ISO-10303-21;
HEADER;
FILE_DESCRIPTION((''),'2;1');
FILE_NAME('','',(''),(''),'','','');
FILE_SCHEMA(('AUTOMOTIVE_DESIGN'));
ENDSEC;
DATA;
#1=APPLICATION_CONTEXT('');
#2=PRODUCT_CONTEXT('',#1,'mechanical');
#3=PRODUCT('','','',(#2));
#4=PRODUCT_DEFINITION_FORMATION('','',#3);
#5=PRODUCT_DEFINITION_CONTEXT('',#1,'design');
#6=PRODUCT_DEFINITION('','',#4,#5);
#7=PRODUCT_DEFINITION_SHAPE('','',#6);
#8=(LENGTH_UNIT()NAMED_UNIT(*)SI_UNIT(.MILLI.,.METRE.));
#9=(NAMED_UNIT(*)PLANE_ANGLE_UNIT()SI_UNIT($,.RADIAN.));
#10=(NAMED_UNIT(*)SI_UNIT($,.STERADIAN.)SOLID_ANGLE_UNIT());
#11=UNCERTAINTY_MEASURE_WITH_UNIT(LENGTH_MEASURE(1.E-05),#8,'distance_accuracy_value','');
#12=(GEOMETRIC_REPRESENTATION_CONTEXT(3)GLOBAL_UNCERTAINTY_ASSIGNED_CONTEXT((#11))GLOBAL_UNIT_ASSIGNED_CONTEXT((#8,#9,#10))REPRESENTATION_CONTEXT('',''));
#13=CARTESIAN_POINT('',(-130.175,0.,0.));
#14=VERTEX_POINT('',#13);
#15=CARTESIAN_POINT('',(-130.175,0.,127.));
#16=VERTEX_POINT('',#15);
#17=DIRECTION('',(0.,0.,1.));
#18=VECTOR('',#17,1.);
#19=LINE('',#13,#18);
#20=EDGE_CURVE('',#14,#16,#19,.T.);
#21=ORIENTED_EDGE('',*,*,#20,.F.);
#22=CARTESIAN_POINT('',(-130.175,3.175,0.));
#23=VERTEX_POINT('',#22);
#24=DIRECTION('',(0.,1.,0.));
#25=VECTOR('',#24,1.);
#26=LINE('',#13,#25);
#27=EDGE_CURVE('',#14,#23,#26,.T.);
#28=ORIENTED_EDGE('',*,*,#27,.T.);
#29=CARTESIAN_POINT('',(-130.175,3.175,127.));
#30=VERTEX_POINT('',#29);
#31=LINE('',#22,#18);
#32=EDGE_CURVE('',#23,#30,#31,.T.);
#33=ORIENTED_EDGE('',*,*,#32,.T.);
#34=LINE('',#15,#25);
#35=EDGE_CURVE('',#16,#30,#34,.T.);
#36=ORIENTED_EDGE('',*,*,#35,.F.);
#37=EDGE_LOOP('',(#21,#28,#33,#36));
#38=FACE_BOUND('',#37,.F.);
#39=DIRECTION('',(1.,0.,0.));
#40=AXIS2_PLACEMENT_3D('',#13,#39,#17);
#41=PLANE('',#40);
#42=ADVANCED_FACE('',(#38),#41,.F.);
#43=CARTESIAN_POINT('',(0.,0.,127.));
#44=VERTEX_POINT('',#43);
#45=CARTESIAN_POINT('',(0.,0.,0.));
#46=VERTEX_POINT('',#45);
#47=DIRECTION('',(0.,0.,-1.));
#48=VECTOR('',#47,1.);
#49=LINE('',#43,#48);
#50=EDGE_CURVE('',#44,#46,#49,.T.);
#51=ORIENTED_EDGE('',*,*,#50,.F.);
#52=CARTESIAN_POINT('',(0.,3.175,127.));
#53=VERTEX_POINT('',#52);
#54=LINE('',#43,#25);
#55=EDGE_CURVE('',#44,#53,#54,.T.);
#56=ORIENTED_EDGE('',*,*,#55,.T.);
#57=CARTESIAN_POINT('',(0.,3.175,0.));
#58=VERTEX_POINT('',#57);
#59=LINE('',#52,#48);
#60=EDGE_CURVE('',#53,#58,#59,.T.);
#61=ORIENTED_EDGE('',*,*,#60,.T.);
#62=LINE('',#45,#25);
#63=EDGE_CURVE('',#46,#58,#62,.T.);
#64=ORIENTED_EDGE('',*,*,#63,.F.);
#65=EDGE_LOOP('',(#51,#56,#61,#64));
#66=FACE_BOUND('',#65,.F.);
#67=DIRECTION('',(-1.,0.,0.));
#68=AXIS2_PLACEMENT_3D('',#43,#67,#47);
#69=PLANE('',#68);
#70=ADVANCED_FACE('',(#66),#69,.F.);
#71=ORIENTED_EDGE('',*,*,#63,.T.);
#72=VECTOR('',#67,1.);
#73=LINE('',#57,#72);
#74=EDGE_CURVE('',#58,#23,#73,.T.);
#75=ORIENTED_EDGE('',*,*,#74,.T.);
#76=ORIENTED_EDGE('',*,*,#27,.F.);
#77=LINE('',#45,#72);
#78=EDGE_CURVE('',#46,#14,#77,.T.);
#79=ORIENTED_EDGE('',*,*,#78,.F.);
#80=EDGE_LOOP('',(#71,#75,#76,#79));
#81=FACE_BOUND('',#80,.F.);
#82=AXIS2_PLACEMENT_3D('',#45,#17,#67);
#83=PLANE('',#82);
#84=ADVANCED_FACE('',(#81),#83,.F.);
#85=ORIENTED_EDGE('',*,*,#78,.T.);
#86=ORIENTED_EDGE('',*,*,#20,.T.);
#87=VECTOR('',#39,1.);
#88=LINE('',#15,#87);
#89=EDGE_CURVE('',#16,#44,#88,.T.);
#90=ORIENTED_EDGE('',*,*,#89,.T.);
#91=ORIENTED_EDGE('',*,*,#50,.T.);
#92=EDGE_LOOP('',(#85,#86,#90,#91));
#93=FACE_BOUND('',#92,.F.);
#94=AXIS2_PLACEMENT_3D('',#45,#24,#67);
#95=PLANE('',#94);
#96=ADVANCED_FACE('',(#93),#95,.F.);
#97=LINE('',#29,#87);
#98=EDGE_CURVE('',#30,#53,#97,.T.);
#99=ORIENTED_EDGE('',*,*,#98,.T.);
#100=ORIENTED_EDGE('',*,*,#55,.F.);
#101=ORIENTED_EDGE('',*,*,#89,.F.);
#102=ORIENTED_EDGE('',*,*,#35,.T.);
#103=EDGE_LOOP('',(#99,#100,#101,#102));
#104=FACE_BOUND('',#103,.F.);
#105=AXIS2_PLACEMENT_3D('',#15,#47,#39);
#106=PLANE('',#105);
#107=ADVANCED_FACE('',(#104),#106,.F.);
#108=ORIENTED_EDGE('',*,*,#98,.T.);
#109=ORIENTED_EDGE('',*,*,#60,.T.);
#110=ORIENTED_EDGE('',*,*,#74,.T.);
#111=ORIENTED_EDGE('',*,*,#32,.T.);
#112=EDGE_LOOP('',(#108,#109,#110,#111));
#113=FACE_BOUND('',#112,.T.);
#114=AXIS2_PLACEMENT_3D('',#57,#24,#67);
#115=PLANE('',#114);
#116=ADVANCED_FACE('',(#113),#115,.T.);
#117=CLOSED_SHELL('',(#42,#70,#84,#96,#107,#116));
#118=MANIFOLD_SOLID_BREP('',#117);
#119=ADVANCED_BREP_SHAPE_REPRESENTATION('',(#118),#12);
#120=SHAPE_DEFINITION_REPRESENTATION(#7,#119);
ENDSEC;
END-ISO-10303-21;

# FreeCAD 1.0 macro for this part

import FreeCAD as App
import Part
import Sketcher
Q = App.Units.Quantity


def add_polygon(sketch, points):
    """Adds a closed chain of lines whose ends are joined by coincident constraints."""
    first, n = sketch.GeometryCount, len(points)
    for a, b in zip(points, points[1:] + points[:1]):
        sketch.addGeometry(Part.LineSegment(App.Vector(*a, 0), App.Vector(*b, 0)), False)
    for i in range(n):
        sketch.addConstraint(Sketcher.Constraint("Coincident", first + i, 2, first + (i + 1) % n, 1))

doc = App.newDocument("Part")
params = doc.addObject("Spreadsheet::Sheet", "Params")
for row, (alias, value) in enumerate([
    ("sketch1_height", "5 in"),
    ("sketch1_width", "5.125 in"),
    ("pad1_length", "0.125 in"),
], start=1):
    params.set(f"A{row}", alias)
    params.set(f"B{row}", "=" + value)
    params.setAlias(f"B{row}", alias)

body = doc.addObject("PartDesign::Body", "Body")

# Sketch on XZ plane
sketch1 = body.newObject("Sketcher::SketchObject", "Sketch")
sketch1.AttachmentSupport = (doc.getObject("XZ_Plane"), [""])
sketch1.MapMode = "FlatFace"
add_polygon(sketch1, [(0, 127), (0, 0), (-130, 0), (-130, 127)])  # lines 0-3
sketch1.addConstraint([
    Sketcher.Constraint("Vertical", 0),
    Sketcher.Constraint("Horizontal", 1),
    Sketcher.Constraint("Vertical", 2),
    Sketcher.Constraint("Horizontal", 3),
    Sketcher.Constraint("Coincident", 0, 2, -1, 1),
    Sketcher.Constraint("DistanceY", 0, 2, 0, 1, Q("5 in")),
    Sketcher.Constraint("DistanceX", 1, 2, 1, 1, Q("5.125 in")),
])
sketch1.setExpression("Constraints[9]", "Params.sketch1_height")
sketch1.setExpression("Constraints[10]", "Params.sketch1_width")
pad1 = body.newObject("PartDesign::Pad", "Pad")
pad1.Profile = sketch1
pad1.setExpression("Length", "Params.pad1_length")
pad1.Reversed = True

doc.recompute()
